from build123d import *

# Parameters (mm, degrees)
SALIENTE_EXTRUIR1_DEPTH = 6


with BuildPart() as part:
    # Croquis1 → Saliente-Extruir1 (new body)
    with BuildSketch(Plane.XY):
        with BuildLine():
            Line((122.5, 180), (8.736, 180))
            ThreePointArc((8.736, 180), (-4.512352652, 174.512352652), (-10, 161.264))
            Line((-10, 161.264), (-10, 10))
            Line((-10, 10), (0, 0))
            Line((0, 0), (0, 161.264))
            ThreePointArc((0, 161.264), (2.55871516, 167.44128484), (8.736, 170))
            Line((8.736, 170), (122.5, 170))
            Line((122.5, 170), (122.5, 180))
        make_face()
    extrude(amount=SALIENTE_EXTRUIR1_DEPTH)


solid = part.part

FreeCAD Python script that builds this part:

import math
import FreeCAD as App
import Part
import Sketcher

V = App.Vector
Q = App.Units.Quantity

doc = App.newDocument("Part")
body = doc.addObject("PartDesign::Body", "Body")

# Sketch on XY plane
sketch1 = doc.addObject("Sketcher::SketchObject", "Sketch")
body.addObject(sketch1)
sketch1.AttachmentSupport = (doc.XY_Plane, [""])
sketch1.MapMode = "FlatFace"
sketch1.addGeometry([
    Part.LineSegment(V(122, 180, 0), V(9, 180, 0)),  # 0
    Part.ArcOfCircle(Part.Circle(V(9, 161, 0), V(0, 0, 1), 19), math.radians(90), math.radians(180)),  # 1
    Part.LineSegment(V(-10, 161, 0), V(-10, 10, 0)),  # 2
    Part.LineSegment(V(-10, 10, 0), V(0, 0, 0)),  # 3
    Part.LineSegment(V(0, 0, 0), V(0, 161, 0)),  # 4
    Part.ArcOfCircle(Part.Circle(V(9, 161, 0), V(0, 0, 1), 9), math.radians(90), math.radians(180)),  # 5
    Part.LineSegment(V(9, 170, 0), V(122, 170, 0)),  # 6
    Part.LineSegment(V(122, 170, 0), V(122, 180, 0)),  # 7
], False)
sketch1.addConstraint([
    Sketcher.Constraint("Tangent", 0, 2, 1, 1),
    Sketcher.Constraint("Tangent", 1, 2, 2, 1),
    Sketcher.Constraint("Coincident", 2, 2, 3, 1),
    Sketcher.Constraint("Coincident", 3, 2, 4, 1),
    Sketcher.Constraint("Tangent", 4, 2, 5, 2),
    Sketcher.Constraint("Tangent", 5, 1, 6, 1),
    Sketcher.Constraint("Coincident", 6, 2, 7, 1),
    Sketcher.Constraint("Coincident", 7, 2, 0, 1),
    Sketcher.Constraint("Horizontal", 0),
    Sketcher.Constraint("Vertical", 2),
    Sketcher.Constraint("Vertical", 4),
    Sketcher.Constraint("Horizontal", 6),
    Sketcher.Constraint("Vertical", 7),
    Sketcher.Constraint("Coincident", 3, 2, -1, 1),
    Sketcher.Constraint("Coincident", 5, 3, 1, 3),
    Sketcher.Constraint("DistanceY", 7, 1, 7, 2, Q("10 mm")),
    Sketcher.Constraint("Angle", 3, Q("-45 deg")),
    Sketcher.Constraint("DistanceY", -1, 1, 0, 2, Q("180 mm")),
    Sketcher.Constraint("Radius", 1, Q("18.736 mm")),
    Sketcher.Constraint("DistanceX", -1, 1, 6, 2, Q("122.5 mm")),
])
pad1 = doc.addObject("PartDesign::Pad", "Pad")
body.addObject(pad1)
pad1.Profile = sketch1
pad1.Length = 6

doc.recompute()
